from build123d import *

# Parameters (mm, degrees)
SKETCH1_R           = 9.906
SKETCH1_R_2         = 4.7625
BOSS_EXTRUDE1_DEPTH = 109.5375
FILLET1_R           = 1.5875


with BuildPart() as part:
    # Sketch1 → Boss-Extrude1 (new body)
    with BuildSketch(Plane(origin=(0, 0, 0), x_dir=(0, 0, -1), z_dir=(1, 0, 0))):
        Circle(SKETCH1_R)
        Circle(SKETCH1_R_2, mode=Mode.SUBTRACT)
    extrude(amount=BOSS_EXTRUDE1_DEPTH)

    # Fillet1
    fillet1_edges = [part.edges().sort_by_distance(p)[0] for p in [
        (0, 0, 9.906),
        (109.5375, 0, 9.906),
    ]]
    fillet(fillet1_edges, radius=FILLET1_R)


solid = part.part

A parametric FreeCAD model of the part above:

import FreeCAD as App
import Part
import Sketcher
Q = App.Units.Quantity


def edges_at(feature, points):
    """Names of the edges that pass closest to the given points."""
    edges = feature.Shape.Edges
    near = lambda p: min(range(len(edges)), key=lambda i: edges[i].distToShape(Part.Vertex(*p))[0])
    return sorted({f"Edge{near(p) + 1}" for p in points})

doc = App.newDocument("Part")
body = doc.addObject("PartDesign::Body", "Body")

sketch1 = body.newObject("Sketcher::SketchObject", "Sketch")
sketch1.AttachmentSupport = (doc.getObject("YZ_Plane"), [""])
sketch1.MapMode = "FlatFace"
sketch1.addGeometry([
    Part.Circle(App.Vector(0, 0, 0), App.Vector(0, 0, 1), 9.9),
    Part.Circle(App.Vector(0, 0, 0), App.Vector(0, 0, 1), 4.8),
], False)
sketch1.addConstraint([
    Sketcher.Constraint("Coincident", 0, 3, -1, 1),
    Sketcher.Constraint("Coincident", 1, 3, -1, 1),
    Sketcher.Constraint("Diameter", 0, Q("0.78 in")),
    Sketcher.Constraint("Diameter", 1, Q("0.375 in")),
])
pad1 = body.newObject("PartDesign::Pad", "Pad")
pad1.Profile = sketch1
pad1.Length = Q("4.3125 in")
doc.recompute()

fillet = body.newObject("PartDesign::Fillet", "Fillet")
fillet.Base = (pad1, edges_at(pad1, [(0, 0, 9.906), (109.537, 0, 9.906)]))
fillet.Radius = Q("0.0625 in")

doc.recompute()
